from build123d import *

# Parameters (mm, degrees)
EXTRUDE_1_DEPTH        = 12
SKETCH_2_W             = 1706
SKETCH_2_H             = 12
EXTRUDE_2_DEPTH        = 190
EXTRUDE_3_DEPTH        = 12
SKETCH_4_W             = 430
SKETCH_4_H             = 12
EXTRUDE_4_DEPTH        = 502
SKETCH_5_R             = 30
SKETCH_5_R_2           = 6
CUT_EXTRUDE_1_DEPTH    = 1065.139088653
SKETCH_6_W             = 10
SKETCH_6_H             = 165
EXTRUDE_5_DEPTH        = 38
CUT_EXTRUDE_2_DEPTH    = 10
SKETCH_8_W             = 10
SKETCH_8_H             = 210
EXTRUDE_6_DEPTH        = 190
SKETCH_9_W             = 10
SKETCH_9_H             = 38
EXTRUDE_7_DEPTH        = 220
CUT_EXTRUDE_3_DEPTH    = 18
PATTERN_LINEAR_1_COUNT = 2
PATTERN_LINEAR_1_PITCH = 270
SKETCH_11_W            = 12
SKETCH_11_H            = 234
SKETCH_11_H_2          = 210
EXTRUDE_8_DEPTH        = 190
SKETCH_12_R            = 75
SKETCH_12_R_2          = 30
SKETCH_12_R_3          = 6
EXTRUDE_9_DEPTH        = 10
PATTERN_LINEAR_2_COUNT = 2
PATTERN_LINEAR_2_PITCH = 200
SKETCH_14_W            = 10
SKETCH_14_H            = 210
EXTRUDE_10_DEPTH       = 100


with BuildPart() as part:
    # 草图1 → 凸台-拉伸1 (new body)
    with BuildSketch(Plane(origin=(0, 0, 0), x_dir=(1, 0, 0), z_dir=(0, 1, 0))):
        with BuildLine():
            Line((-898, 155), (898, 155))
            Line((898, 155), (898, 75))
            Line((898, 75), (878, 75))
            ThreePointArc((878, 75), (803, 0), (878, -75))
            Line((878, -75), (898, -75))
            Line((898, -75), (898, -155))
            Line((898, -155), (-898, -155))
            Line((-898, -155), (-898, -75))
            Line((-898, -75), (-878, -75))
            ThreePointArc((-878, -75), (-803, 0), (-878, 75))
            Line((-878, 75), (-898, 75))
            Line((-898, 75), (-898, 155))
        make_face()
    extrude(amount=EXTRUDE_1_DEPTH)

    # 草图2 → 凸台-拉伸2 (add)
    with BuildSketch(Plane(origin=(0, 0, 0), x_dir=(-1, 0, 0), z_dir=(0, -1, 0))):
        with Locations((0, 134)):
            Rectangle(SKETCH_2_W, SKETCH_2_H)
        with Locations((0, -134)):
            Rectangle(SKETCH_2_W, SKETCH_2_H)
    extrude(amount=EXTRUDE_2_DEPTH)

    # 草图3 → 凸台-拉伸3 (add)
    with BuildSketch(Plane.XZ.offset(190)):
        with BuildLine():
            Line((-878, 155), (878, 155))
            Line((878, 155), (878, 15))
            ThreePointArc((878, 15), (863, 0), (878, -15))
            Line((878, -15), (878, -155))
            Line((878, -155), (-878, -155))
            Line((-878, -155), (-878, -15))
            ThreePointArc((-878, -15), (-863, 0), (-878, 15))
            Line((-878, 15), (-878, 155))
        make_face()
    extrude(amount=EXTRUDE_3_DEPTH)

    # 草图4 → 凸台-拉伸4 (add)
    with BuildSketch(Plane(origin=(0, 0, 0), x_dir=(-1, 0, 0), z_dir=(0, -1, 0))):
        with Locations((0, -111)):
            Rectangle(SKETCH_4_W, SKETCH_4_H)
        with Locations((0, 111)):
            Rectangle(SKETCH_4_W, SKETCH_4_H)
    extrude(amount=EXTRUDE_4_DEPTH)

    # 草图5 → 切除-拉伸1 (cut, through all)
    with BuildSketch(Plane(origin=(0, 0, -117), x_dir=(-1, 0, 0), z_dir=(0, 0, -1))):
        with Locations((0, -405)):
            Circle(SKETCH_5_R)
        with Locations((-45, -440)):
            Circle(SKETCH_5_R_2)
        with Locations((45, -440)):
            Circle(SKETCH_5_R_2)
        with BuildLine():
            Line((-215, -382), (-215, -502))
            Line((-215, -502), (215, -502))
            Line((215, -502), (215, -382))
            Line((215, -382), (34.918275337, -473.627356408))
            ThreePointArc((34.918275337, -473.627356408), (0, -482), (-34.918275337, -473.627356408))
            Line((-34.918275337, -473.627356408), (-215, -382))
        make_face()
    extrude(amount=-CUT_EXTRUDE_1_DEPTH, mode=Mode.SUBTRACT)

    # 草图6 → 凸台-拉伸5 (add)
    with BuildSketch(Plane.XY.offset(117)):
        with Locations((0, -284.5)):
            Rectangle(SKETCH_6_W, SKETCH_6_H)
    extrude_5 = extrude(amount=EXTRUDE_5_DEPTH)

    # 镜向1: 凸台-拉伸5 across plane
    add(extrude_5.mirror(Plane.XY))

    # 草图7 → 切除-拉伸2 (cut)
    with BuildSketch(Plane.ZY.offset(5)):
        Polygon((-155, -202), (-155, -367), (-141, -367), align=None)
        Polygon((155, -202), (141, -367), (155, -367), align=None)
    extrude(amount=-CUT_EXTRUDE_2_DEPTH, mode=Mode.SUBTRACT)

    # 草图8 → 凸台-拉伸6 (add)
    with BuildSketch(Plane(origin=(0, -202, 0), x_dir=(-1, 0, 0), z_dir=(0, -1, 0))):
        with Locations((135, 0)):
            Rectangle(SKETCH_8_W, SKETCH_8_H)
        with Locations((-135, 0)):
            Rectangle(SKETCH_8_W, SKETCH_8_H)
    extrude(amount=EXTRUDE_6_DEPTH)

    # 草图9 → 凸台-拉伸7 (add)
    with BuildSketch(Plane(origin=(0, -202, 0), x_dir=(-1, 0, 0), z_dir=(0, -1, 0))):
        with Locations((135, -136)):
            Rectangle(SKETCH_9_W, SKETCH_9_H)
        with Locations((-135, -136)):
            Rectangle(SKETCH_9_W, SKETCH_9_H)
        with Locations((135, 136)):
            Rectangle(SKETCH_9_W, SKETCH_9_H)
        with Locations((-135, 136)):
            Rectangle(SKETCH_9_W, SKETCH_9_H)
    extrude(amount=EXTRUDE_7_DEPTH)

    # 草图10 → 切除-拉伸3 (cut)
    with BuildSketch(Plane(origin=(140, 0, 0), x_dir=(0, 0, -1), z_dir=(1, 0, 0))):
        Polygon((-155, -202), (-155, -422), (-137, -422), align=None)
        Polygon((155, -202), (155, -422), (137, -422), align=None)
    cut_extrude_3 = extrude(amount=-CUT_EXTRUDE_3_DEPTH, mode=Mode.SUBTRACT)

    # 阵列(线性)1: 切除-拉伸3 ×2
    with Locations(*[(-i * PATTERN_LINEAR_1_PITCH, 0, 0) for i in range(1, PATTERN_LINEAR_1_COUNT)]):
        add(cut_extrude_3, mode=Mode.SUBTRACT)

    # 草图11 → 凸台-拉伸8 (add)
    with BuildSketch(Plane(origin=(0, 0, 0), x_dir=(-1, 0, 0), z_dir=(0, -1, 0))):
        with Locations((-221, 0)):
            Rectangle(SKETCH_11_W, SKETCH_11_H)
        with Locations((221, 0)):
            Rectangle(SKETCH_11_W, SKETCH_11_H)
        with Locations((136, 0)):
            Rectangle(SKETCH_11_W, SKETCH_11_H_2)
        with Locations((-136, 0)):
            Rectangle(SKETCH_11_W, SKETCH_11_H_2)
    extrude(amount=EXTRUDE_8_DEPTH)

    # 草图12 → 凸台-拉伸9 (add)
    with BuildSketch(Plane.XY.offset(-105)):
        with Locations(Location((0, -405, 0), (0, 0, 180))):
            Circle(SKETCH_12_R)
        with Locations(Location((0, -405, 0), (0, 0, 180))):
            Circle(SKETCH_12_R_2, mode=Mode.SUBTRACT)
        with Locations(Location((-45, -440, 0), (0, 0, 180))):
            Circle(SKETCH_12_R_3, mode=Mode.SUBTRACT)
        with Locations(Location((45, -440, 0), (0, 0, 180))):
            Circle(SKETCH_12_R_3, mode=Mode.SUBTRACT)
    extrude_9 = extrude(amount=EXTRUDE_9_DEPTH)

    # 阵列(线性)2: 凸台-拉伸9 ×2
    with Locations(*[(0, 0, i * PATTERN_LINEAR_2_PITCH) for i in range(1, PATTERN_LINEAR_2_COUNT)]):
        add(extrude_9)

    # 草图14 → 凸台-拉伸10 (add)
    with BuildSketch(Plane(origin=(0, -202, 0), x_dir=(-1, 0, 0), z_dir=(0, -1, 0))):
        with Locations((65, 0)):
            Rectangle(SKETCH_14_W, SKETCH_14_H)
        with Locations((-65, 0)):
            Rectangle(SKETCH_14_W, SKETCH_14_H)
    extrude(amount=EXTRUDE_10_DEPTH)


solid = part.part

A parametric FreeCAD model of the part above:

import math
import FreeCAD as App
import Part
import Sketcher

V = App.Vector


def add_polygon(sketch, points):
    """Adds a closed chain of lines whose ends are joined by coincident constraints."""
    first, n = sketch.GeometryCount, len(points)
    for a, b in zip(points, points[1:] + points[:1]):
        sketch.addGeometry(Part.LineSegment(App.Vector(*a, 0), App.Vector(*b, 0)), False)
    for i in range(n):
        sketch.addConstraint(Sketcher.Constraint("Coincident", first + i, 2, first + (i + 1) % n, 1))

doc = App.newDocument("Part")
params = doc.addObject("Spreadsheet::Sheet", "Params")
for row, (alias, value) in enumerate([
    ("sketch1_radius", "75 mm"),
    ("sketch1_width", "1796 mm"),
    ("sketch1_width2", "20 mm"),
    ("sketch1_height", "80 mm"),
    ("pad1_length", "12 mm"),
    ("sketch2_width", "1706 mm"),
    ("sketch2_height", "12 mm"),
    ("pad2_length", "190 mm"),
    ("sketch3_radius", "15 mm"),
    ("sketch3_width", "1756 mm"),
    ("sketch3_height", "140 mm"),
    ("pad3_length", "12 mm"),
    ("sketch4_width", "430 mm"),
    ("sketch4_height", "12 mm"),
    ("pad4_length", "502 mm"),
    ("sketch5_diameter", "60 mm"),
    ("sketch5_diameter2", "12 mm"),
    ("sketch5_radius", "77 mm"),
    ("sketch5_width", "430 mm"),
    ("sketch5_height", "120 mm"),
    ("sketch6_width", "10 mm"),
    ("sketch6_height", "165 mm"),
    ("pad5_length", "38 mm"),
    ("sketch7_width", "165 mm"),
    ("sketch7_height", "14 mm"),
    ("pocket2_length", "10 mm"),
    ("sketch8_width", "10 mm"),
    ("sketch8_height", "210 mm"),
    ("pad6_length", "190 mm"),
    ("sketch9_width", "10 mm"),
    ("sketch9_height", "38 mm"),
    ("pad7_length", "220 mm"),
    ("sketch10_width", "220 mm"),
    ("sketch10_height", "18 mm"),
    ("pocket3_length", "18 mm"),
    ("linearpattern_pitch", "270 mm"),
    ("sketch11_width", "12 mm"),
    ("sketch11_height", "234 mm"),
    ("sketch11_height2", "210 mm"),
    ("pad8_length", "190 mm"),
    ("sketch12_diameter", "150 mm"),
    ("sketch12_diameter2", "60 mm"),
    ("sketch12_diameter3", "12 mm"),
    ("pad9_length", "10 mm"),
    ("linearpattern2_pitch", "200 mm"),
    ("sketch13_width", "10 mm"),
    ("sketch13_height", "210 mm"),
    ("pad10_length", "100 mm"),
], start=1):
    params.set(f"A{row}", alias)
    params.set(f"B{row}", "=" + value)
    params.setAlias(f"B{row}", alias)

body = doc.addObject("PartDesign::Body", "Body")

# Sketch on XZ plane
sketch1 = doc.addObject("Sketcher::SketchObject", "Sketch")
body.addObject(sketch1)
sketch1.AttachmentSupport = (doc.XZ_Plane, [""])
sketch1.MapMode = "FlatFace"
sketch1.addGeometry(Part.LineSegment(V(898, -155, 0), V(-898, -155, 0)), False)
sketch1.addGeometry(Part.LineSegment(V(-898, -155, 0), V(-898, -75, 0)), False)
sketch1.addGeometry(Part.LineSegment(V(-898, -75, 0), V(-878, -75, 0)), False)
sketch1.addGeometry(Part.ArcOfCircle(Part.Circle(V(-878, 0, 0), V(0, 0, 1), 75), math.radians(-90), math.radians(90)), False)
sketch1.addGeometry(Part.LineSegment(V(-878, 75, 0), V(-898, 75, 0)), False)
sketch1.addGeometry(Part.LineSegment(V(-898, 75, 0), V(-898, 155, 0)), False)
sketch1.addGeometry(Part.LineSegment(V(-898, 155, 0), V(898, 155, 0)), False)
sketch1.addGeometry(Part.LineSegment(V(898, 155, 0), V(898, 75, 0)), False)
sketch1.addGeometry(Part.LineSegment(V(898, 75, 0), V(878, 75, 0)), False)
sketch1.addGeometry(Part.ArcOfCircle(Part.Circle(V(878, 0, 0), V(0, 0, 1), 75), math.radians(90), math.radians(270)), False)
sketch1.addGeometry(Part.LineSegment(V(878, -75, 0), V(898, -75, 0)), False)
sketch1.addGeometry(Part.LineSegment(V(898, -75, 0), V(898, -155, 0)), False)
sketch1.addConstraint(Sketcher.Constraint("Coincident", 0, 2, 1, 1))
sketch1.addConstraint(Sketcher.Constraint("Coincident", 1, 2, 2, 1))
sketch1.addConstraint(Sketcher.Constraint("Tangent", 2, 2, 3, 1))
sketch1.addConstraint(Sketcher.Constraint("Tangent", 3, 2, 4, 1))
sketch1.addConstraint(Sketcher.Constraint("Coincident", 4, 2, 5, 1))
sketch1.addConstraint(Sketcher.Constraint("Coincident", 5, 2, 6, 1))
sketch1.addConstraint(Sketcher.Constraint("Coincident", 6, 2, 7, 1))
sketch1.addConstraint(Sketcher.Constraint("Coincident", 7, 2, 8, 1))
sketch1.addConstraint(Sketcher.Constraint("Tangent", 8, 2, 9, 1))
sketch1.addConstraint(Sketcher.Constraint("Tangent", 9, 2, 10, 1))
sketch1.addConstraint(Sketcher.Constraint("Coincident", 10, 2, 11, 1))
sketch1.addConstraint(Sketcher.Constraint("Coincident", 11, 2, 0, 1))
sketch1.addConstraint(Sketcher.Constraint("Horizontal", 0))
sketch1.addConstraint(Sketcher.Constraint("Vertical", 1))
sketch1.addConstraint(Sketcher.Constraint("Horizontal", 2))
sketch1.addConstraint(Sketcher.Constraint("Horizontal", 4))
sketch1.addConstraint(Sketcher.Constraint("Vertical", 5))
sketch1.addConstraint(Sketcher.Constraint("Horizontal", 6))
sketch1.addConstraint(Sketcher.Constraint("Vertical", 7))
sketch1.addConstraint(Sketcher.Constraint("Horizontal", 8))
sketch1.addConstraint(Sketcher.Constraint("Horizontal", 10))
sketch1.addConstraint(Sketcher.Constraint("Vertical", 11))
sketch1.addConstraint(Sketcher.Constraint("Equal", 3, 9))
sketch1.addConstraint(Sketcher.Constraint("Symmetric", 3, 3, 9, 3, -1, 1))
sketch1.addConstraint(Sketcher.Constraint("Symmetric", 0, 2, 6, 2, -1, 1))
sketch1.addConstraint(Sketcher.Constraint("Symmetric", 4, 2, 7, 2, -2))
sketch1.addConstraint(Sketcher.Constraint("Vertical", 7, 2, 10, 2))
sketch1.addConstraint(Sketcher.Constraint("Radius", 3, 75.0))
sketch1.addConstraint(Sketcher.Constraint("DistanceX", 0, 2, 0, 1, 1796.0))
sketch1.addConstraint(Sketcher.Constraint("DistanceX", 2, 1, 2, 2, 20.0))
sketch1.addConstraint(Sketcher.Constraint("DistanceY", 1, 1, 1, 2, 80.0))
sketch1.setExpression("Constraints[27]", "Params.sketch1_radius")
sketch1.setExpression("Constraints[28]", "Params.sketch1_width")
sketch1.setExpression("Constraints[29]", "Params.sketch1_width2")
sketch1.setExpression("Constraints[30]", "Params.sketch1_height")
pad1 = doc.addObject("PartDesign::Pad", "Pad")
body.addObject(pad1)
pad1.Profile = sketch1
pad1.setExpression("Length", "Params.pad1_length")
pad1.Reversed = True

# Sketch on XZ plane
sketch2 = doc.addObject("Sketcher::SketchObject", "Sketch001")
body.addObject(sketch2)
sketch2.AttachmentSupport = (doc.XZ_Plane, [""])
sketch2.MapMode = "FlatFace"
add_polygon(sketch2, [(853, -140), (853, -128), (-853, -128), (-853, -140)])  # lines 0-3
add_polygon(sketch2, [(853, 128), (853, 140), (-853, 140), (-853, 128)])  # lines 4-7
sketch2.addConstraint(Sketcher.Constraint("Vertical", 0))
sketch2.addConstraint(Sketcher.Constraint("Horizontal", 1))
sketch2.addConstraint(Sketcher.Constraint("Vertical", 2))
sketch2.addConstraint(Sketcher.Constraint("Horizontal", 3))
sketch2.addConstraint(Sketcher.Constraint("Vertical", 4))
sketch2.addConstraint(Sketcher.Constraint("Horizontal", 5))
sketch2.addConstraint(Sketcher.Constraint("Vertical", 6))
sketch2.addConstraint(Sketcher.Constraint("Horizontal", 7))
sketch2.addConstraint(Sketcher.Constraint("Symmetric", 2, 2, 4, 2, -1, 1))
sketch2.addConstraint(Sketcher.Constraint("Symmetric", 0, 2, 6, 2, -1, 1))
sketch2.addConstraint(Sketcher.Constraint("Vertical", 3, 2, 4, 2))
sketch2.addConstraint(Sketcher.Constraint("DistanceX", 1, 2, 1, 1, 1706.0))
sketch2.addConstraint(Sketcher.Constraint("DistanceY", 0, 1, 0, 2, 12.0))
sketch2.addConstraint(Sketcher.Constraint("DistanceY", 0, 2, -1, 1, 128.0))
sketch2.setExpression("Constraints[19]", "Params.sketch2_width")
sketch2.setExpression("Constraints[20]", "Params.sketch2_height")
pad2 = doc.addObject("PartDesign::Pad", "Pad001")
body.addObject(pad2)
pad2.Profile = sketch2
pad2.setExpression("Length", "Params.pad2_length")

# Sketch on XZ plane
sketch3 = doc.addObject("Sketcher::SketchObject", "Sketch002")
body.addObject(sketch3)
sketch3.AttachmentSupport = (doc.XZ_Plane, [""])
sketch3.MapMode = "FlatFace"
sketch3.AttachmentOffset = App.Placement(V(0, 0, 190), App.Rotation())
sketch3.addGeometry(Part.LineSegment(V(878, 155, 0), V(-878, 155, 0)), False)
sketch3.addGeometry(Part.LineSegment(V(-878, 155, 0), V(-878, 15, 0)), False)
sketch3.addGeometry(Part.ArcOfCircle(Part.Circle(V(-878, 0, 0), V(0, 0, 1), 15), math.radians(-90), math.radians(90)), False)
sketch3.addGeometry(Part.LineSegment(V(-878, -15, 0), V(-878, -155, 0)), False)
sketch3.addGeometry(Part.LineSegment(V(-878, -155, 0), V(878, -155, 0)), False)
sketch3.addGeometry(Part.LineSegment(V(878, -155, 0), V(878, -15, 0)), False)
sketch3.addGeometry(Part.ArcOfCircle(Part.Circle(V(878, 0, 0), V(0, 0, 1), 15), math.radians(90), math.radians(270)), False)
sketch3.addGeometry(Part.LineSegment(V(878, 15, 0), V(878, 155, 0)), False)
sketch3.addConstraint(Sketcher.Constraint("Coincident", 0, 2, 1, 1))
sketch3.addConstraint(Sketcher.Constraint("Coincident", 1, 2, 2, 2))
sketch3.addConstraint(Sketcher.Constraint("Coincident", 2, 1, 3, 1))
sketch3.addConstraint(Sketcher.Constraint("Coincident", 3, 2, 4, 1))
sketch3.addConstraint(Sketcher.Constraint("Coincident", 4, 2, 5, 1))
sketch3.addConstraint(Sketcher.Constraint("Coincident", 5, 2, 6, 2))
sketch3.addConstraint(Sketcher.Constraint("Coincident", 6, 1, 7, 1))
sketch3.addConstraint(Sketcher.Constraint("Coincident", 7, 2, 0, 1))
sketch3.addConstraint(Sketcher.Constraint("Horizontal", 0))
sketch3.addConstraint(Sketcher.Constraint("Vertical", 1))
sketch3.addConstraint(Sketcher.Constraint("Vertical", 3))
sketch3.addConstraint(Sketcher.Constraint("Horizontal", 4))
sketch3.addConstraint(Sketcher.Constraint("Vertical", 5))
sketch3.addConstraint(Sketcher.Constraint("Vertical", 7))
sketch3.addConstraint(Sketcher.Constraint("Equal", 2, 6))
sketch3.addConstraint(Sketcher.Constraint("Symmetric", 2, 3, 6, 3, -1, 1))
sketch3.addConstraint(Sketcher.Constraint("Symmetric", 0, 2, 4, 2, -1, 1))
sketch3.addConstraint(Sketcher.Constraint("Symmetric", 2, 1, 5, 2, -2))
sketch3.addConstraint(Sketcher.Constraint("Vertical", 2, 3, 0, 2))
sketch3.addConstraint(Sketcher.Constraint("Vertical", 5, 2, 6, 1))
sketch3.addConstraint(Sketcher.Constraint("Radius", 2, 15.0))
sketch3.addConstraint(Sketcher.Constraint("DistanceX", 0, 2, 0, 1, 1756.0))
sketch3.addConstraint(Sketcher.Constraint("DistanceY", 1, 2, 1, 1, 140.0))
sketch3.setExpression("Constraints[20]", "Params.sketch3_radius")
sketch3.setExpression("Constraints[21]", "Params.sketch3_width")
sketch3.setExpression("Constraints[22]", "Params.sketch3_height")
pad3 = doc.addObject("PartDesign::Pad", "Pad002")
body.addObject(pad3)
pad3.Profile = sketch3
pad3.setExpression("Length", "Params.pad3_length")

# Sketch on XZ plane
sketch4 = doc.addObject("Sketcher::SketchObject", "Sketch003")
body.addObject(sketch4)
sketch4.AttachmentSupport = (doc.XZ_Plane, [""])
sketch4.MapMode = "FlatFace"
add_polygon(sketch4, [(215, 105), (215, 117), (-215, 117), (-215, 105)])  # lines 0-3
add_polygon(sketch4, [(215, -117), (215, -105), (-215, -105), (-215, -117)])  # lines 4-7
sketch4.addConstraint(Sketcher.Constraint("Vertical", 0))
sketch4.addConstraint(Sketcher.Constraint("Horizontal", 1))
sketch4.addConstraint(Sketcher.Constraint("Vertical", 2))
sketch4.addConstraint(Sketcher.Constraint("Horizontal", 3))
sketch4.addConstraint(Sketcher.Constraint("Vertical", 4))
sketch4.addConstraint(Sketcher.Constraint("Horizontal", 5))
sketch4.addConstraint(Sketcher.Constraint("Vertical", 6))
sketch4.addConstraint(Sketcher.Constraint("Horizontal", 7))
sketch4.addConstraint(Sketcher.Constraint("Symmetric", 2, 2, 4, 2, -1, 1))
sketch4.addConstraint(Sketcher.Constraint("Symmetric", 0, 2, 6, 2, -1, 1))
sketch4.addConstraint(Sketcher.Constraint("Vertical", 3, 2, 4, 2))
sketch4.addConstraint(Sketcher.Constraint("DistanceX", 1, 2, 1, 1, 430.0))
sketch4.addConstraint(Sketcher.Constraint("DistanceY", 0, 1, 0, 2, 12.0))
sketch4.addConstraint(Sketcher.Constraint("DistanceY", -1, 1, 0, 2, 117.0))
sketch4.setExpression("Constraints[19]", "Params.sketch4_width")
sketch4.setExpression("Constraints[20]", "Params.sketch4_height")
pad4 = doc.addObject("PartDesign::Pad", "Pad003")
body.addObject(pad4)
pad4.Profile = sketch4
pad4.setExpression("Length", "Params.pad4_length")

# Sketch on XY plane
sketch5 = doc.addObject("Sketcher::SketchObject", "Sketch004")
body.addObject(sketch5)
sketch5.AttachmentSupport = (doc.XY_Plane, [""])
sketch5.MapMode = "FlatFace"
sketch5.AttachmentOffset = App.Placement(V(0, 0, -117), App.Rotation())
sketch5.addGeometry(Part.Circle(V(0, -405, 0), V(0, 0, 1), 30), False)
sketch5.addGeometry(Part.Circle(V(45, -440, 0), V(0, 0, 1), 6), False)
sketch5.addGeometry(Part.Circle(V(-45, -440, 0), V(0, 0, 1), 6), False)
sketch5.addGeometry(Part.LineSegment(V(215, -382, 0), V(215, -502, 0)), False)
sketch5.addGeometry(Part.LineSegment(V(215, -502, 0), V(-215, -502, 0)), False)
sketch5.addGeometry(Part.LineSegment(V(-215, -502, 0), V(-215, -382, 0)), False)
sketch5.addGeometry(Part.LineSegment(V(-215, -382, 0), V(-35, -474, 0)), False)
sketch5.addGeometry(Part.ArcOfCircle(Part.Circle(V(0, -405, 0), V(0, 0, 1), 77), math.radians(-117), math.radians(-63)), False)
sketch5.addGeometry(Part.LineSegment(V(35, -474, 0), V(215, -382, 0)), False)
sketch5.addConstraint(Sketcher.Constraint("Coincident", 3, 2, 4, 1))
sketch5.addConstraint(Sketcher.Constraint("Coincident", 4, 2, 5, 1))
sketch5.addConstraint(Sketcher.Constraint("Coincident", 5, 2, 6, 1))
sketch5.addConstraint(Sketcher.Constraint("Tangent", 6, 2, 7, 1))
sketch5.addConstraint(Sketcher.Constraint("Tangent", 7, 2, 8, 1))
sketch5.addConstraint(Sketcher.Constraint("Coincident", 8, 2, 3, 1))
sketch5.addConstraint(Sketcher.Constraint("Vertical", 3))
sketch5.addConstraint(Sketcher.Constraint("Horizontal", 4))
sketch5.addConstraint(Sketcher.Constraint("Vertical", 5))
sketch5.addConstraint(Sketcher.Constraint("Coincident", 7, 3, 0, 3))
sketch5.addConstraint(Sketcher.Constraint("Equal", 1, 2))
sketch5.addConstraint(Sketcher.Constraint("Symmetric", 1, 3, 2, 3, -2))
sketch5.addConstraint(Sketcher.Constraint("Symmetric", 6, 2, 7, 2, -2))
sketch5.addConstraint(Sketcher.Constraint("Horizontal", 5, 2, 8, 2))
sketch5.addConstraint(Sketcher.Constraint("Diameter", 0, 60.0))
sketch5.addConstraint(Sketcher.Constraint("Diameter", 1, 12.0))
sketch5.addConstraint(Sketcher.Constraint("Radius", 7, 77.0))
sketch5.addConstraint(Sketcher.Constraint("DistanceX", 4, 2, 4, 1, 430.0))
sketch5.addConstraint(Sketcher.Constraint("DistanceY", 3, 2, 3, 1, 120.0))
sketch5.addConstraint(Sketcher.Constraint("DistanceY", 0, 3, -1, 1, 405.0))
sketch5.addConstraint(Sketcher.Constraint("DistanceX", -1, 1, 1, 3, 45.0))
sketch5.addConstraint(Sketcher.Constraint("DistanceY", 1, 3, -1, 1, 440.0))
sketch5.addConstraint(Sketcher.Constraint("DistanceY", 3, 2, -1, 1, 502.0))
sketch5.setExpression("Constraints[14]", "Params.sketch5_diameter")
sketch5.setExpression("Constraints[15]", "Params.sketch5_diameter2")
sketch5.setExpression("Constraints[16]", "Params.sketch5_radius")
sketch5.setExpression("Constraints[17]", "Params.sketch5_width")
sketch5.setExpression("Constraints[18]", "Params.sketch5_height")
pocket1 = doc.addObject("PartDesign::Pocket", "Pocket")
body.addObject(pocket1)
pocket1.Profile = sketch5
pocket1.Type = "ThroughAll"
pocket1.Reversed = True

# Sketch on XY plane
sketch6 = doc.addObject("Sketcher::SketchObject", "Sketch005")
body.addObject(sketch6)
sketch6.AttachmentSupport = (doc.XY_Plane, [""])
sketch6.MapMode = "FlatFace"
sketch6.AttachmentOffset = App.Placement(V(0, 0, 117), App.Rotation())
add_polygon(sketch6, [(-5, -202), (-5, -367), (5, -367), (5, -202)])  # lines 0-3
sketch6.addConstraint(Sketcher.Constraint("Vertical", 0))
sketch6.addConstraint(Sketcher.Constraint("Horizontal", 1))
sketch6.addConstraint(Sketcher.Constraint("Vertical", 2))
sketch6.addConstraint(Sketcher.Constraint("Horizontal", 3))
sketch6.addConstraint(Sketcher.Constraint("DistanceX", 1, 1, 1, 2, 10.0))
sketch6.addConstraint(Sketcher.Constraint("DistanceY", 0, 2, 0, 1, 165.0))
sketch6.addConstraint(Sketcher.Constraint("DistanceX", 0, 2, -1, 1, 5.0))
sketch6.addConstraint(Sketcher.Constraint("DistanceY", 0, 2, -1, 1, 367.0))
sketch6.setExpression("Constraints[8]", "Params.sketch6_width")
sketch6.setExpression("Constraints[9]", "Params.sketch6_height")
pad5 = doc.addObject("PartDesign::Pad", "Pad004")
body.addObject(pad5)
pad5.Profile = sketch6
pad5.setExpression("Length", "Params.pad5_length")
doc.recompute()

mirrored = doc.addObject("PartDesign::Mirrored", "Mirrored")
body.addObject(mirrored)
mirrored.Originals = [pad5]
mirrored.MirrorPlane = (doc.XY_Plane, [""])
body.Tip = mirrored

# Sketch on YZ plane
sketch7 = doc.addObject("Sketcher::SketchObject", "Sketch006")
body.addObject(sketch7)
sketch7.AttachmentSupport = (doc.YZ_Plane, [""])
sketch7.MapMode = "FlatFace"
sketch7.AttachmentOffset = App.Placement(V(0, 0, -5), App.Rotation())
add_polygon(sketch7, [(-202, -155), (-367, -155), (-367, -141)])  # lines 0-2
add_polygon(sketch7, [(-202, 155), (-367, 141), (-367, 155)])  # lines 3-5
sketch7.addConstraint(Sketcher.Constraint("Horizontal", 0))
sketch7.addConstraint(Sketcher.Constraint("Vertical", 1))
sketch7.addConstraint(Sketcher.Constraint("Vertical", 4))
sketch7.addConstraint(Sketcher.Constraint("Horizontal", 5))
sketch7.addConstraint(Sketcher.Constraint("Symmetric", 1, 2, 3, 2, -1))
sketch7.addConstraint(Sketcher.Constraint("Symmetric", 2, 2, 5, 2, -1))
sketch7.addConstraint(Sketcher.Constraint("DistanceX", 0, 2, 0, 1, 165.0))
sketch7.addConstraint(Sketcher.Constraint("DistanceY", 1, 1, 1, 2, 14.0))
sketch7.addConstraint(Sketcher.Constraint("DistanceX", 0, 2, -1, 1, 367.0))
sketch7.addConstraint(Sketcher.Constraint("DistanceY", 0, 2, -1, 1, 155.0))
sketch7.setExpression("Constraints[12]", "Params.sketch7_width")
sketch7.setExpression("Constraints[13]", "Params.sketch7_height")
pocket2 = doc.addObject("PartDesign::Pocket", "Pocket001")
body.addObject(pocket2)
pocket2.Profile = sketch7
pocket2.setExpression("Length", "Params.pocket2_length")
pocket2.Reversed = True

# Sketch on XZ plane
sketch8 = doc.addObject("Sketcher::SketchObject", "Sketch007")
body.addObject(sketch8)
sketch8.AttachmentSupport = (doc.XZ_Plane, [""])
sketch8.MapMode = "FlatFace"
sketch8.AttachmentOffset = App.Placement(V(0, 0, 202), App.Rotation())
add_polygon(sketch8, [(-130, -105), (-130, 105), (-140, 105), (-140, -105)])  # lines 0-3
add_polygon(sketch8, [(140, -105), (140, 105), (130, 105), (130, -105)])  # lines 4-7
sketch8.addConstraint(Sketcher.Constraint("Vertical", 0))
sketch8.addConstraint(Sketcher.Constraint("Horizontal", 1))
sketch8.addConstraint(Sketcher.Constraint("Vertical", 2))
sketch8.addConstraint(Sketcher.Constraint("Horizontal", 3))
sketch8.addConstraint(Sketcher.Constraint("Vertical", 4))
sketch8.addConstraint(Sketcher.Constraint("Horizontal", 5))
sketch8.addConstraint(Sketcher.Constraint("Vertical", 6))
sketch8.addConstraint(Sketcher.Constraint("Horizontal", 7))
sketch8.addConstraint(Sketcher.Constraint("Symmetric", 2, 2, 4, 2, -1, 1))
sketch8.addConstraint(Sketcher.Constraint("Symmetric", 0, 2, 6, 2, -1, 1))
sketch8.addConstraint(Sketcher.Constraint("Horizontal", 1, 2, 4, 2))
sketch8.addConstraint(Sketcher.Constraint("DistanceX", 1, 2, 1, 1, 10.0))
sketch8.addConstraint(Sketcher.Constraint("DistanceY", 0, 1, 0, 2, 210.0))
sketch8.addConstraint(Sketcher.Constraint("DistanceX", 0, 2, -1, 1, 130.0))
sketch8.setExpression("Constraints[19]", "Params.sketch8_width")
sketch8.setExpression("Constraints[20]", "Params.sketch8_height")
pad6 = doc.addObject("PartDesign::Pad", "Pad005")
body.addObject(pad6)
pad6.Profile = sketch8
pad6.setExpression("Length", "Params.pad6_length")

# Sketch on XZ plane
sketch9 = doc.addObject("Sketcher::SketchObject", "Sketch008")
body.addObject(sketch9)
sketch9.AttachmentSupport = (doc.XZ_Plane, [""])
sketch9.MapMode = "FlatFace"
sketch9.AttachmentOffset = App.Placement(V(0, 0, 202), App.Rotation())
add_polygon(sketch9, [(-130, 117), (-130, 155), (-140, 155), (-140, 117)])  # lines 0-3
add_polygon(sketch9, [(140, 117), (140, 155), (130, 155), (130, 117)])  # lines 4-7
add_polygon(sketch9, [(-130, -155), (-130, -117), (-140, -117), (-140, -155)])  # lines 8-11
add_polygon(sketch9, [(140, -155), (140, -117), (130, -117), (130, -155)])  # lines 12-15
sketch9.addConstraint(Sketcher.Constraint("Vertical", 0))
sketch9.addConstraint(Sketcher.Constraint("Horizontal", 1))
sketch9.addConstraint(Sketcher.Constraint("Vertical", 2))
sketch9.addConstraint(Sketcher.Constraint("Horizontal", 3))
sketch9.addConstraint(Sketcher.Constraint("Vertical", 4))
sketch9.addConstraint(Sketcher.Constraint("Horizontal", 5))
sketch9.addConstraint(Sketcher.Constraint("Vertical", 6))
sketch9.addConstraint(Sketcher.Constraint("Horizontal", 7))
sketch9.addConstraint(Sketcher.Constraint("Vertical", 8))
sketch9.addConstraint(Sketcher.Constraint("Horizontal", 9))
sketch9.addConstraint(Sketcher.Constraint("Vertical", 10))
sketch9.addConstraint(Sketcher.Constraint("Horizontal", 11))
sketch9.addConstraint(Sketcher.Constraint("Vertical", 12))
sketch9.addConstraint(Sketcher.Constraint("Horizontal", 13))
sketch9.addConstraint(Sketcher.Constraint("Vertical", 14))
sketch9.addConstraint(Sketcher.Constraint("Horizontal", 15))
sketch9.addConstraint(Sketcher.Constraint("Symmetric", 6, 2, 8, 2, -1, 1))
sketch9.addConstraint(Sketcher.Constraint("Symmetric", 4, 2, 10, 2, -1, 1))
sketch9.addConstraint(Sketcher.Constraint("Symmetric", 2, 2, 12, 2, -1, 1))
sketch9.addConstraint(Sketcher.Constraint("Symmetric", 0, 2, 14, 2, -1, 1))
sketch9.addConstraint(Sketcher.Constraint("Symmetric", 1, 2, 4, 2, -2))
sketch9.addConstraint(Sketcher.Constraint("Symmetric", 3, 2, 6, 2, -2))
sketch9.addConstraint(Sketcher.Constraint("DistanceX", 1, 2, 1, 1, 10.0))
sketch9.addConstraint(Sketcher.Constraint("DistanceY", 0, 1, 0, 2, 38.0))
sketch9.addConstraint(Sketcher.Constraint("DistanceX", 0, 2, -1, 1, 130.0))
sketch9.addConstraint(Sketcher.Constraint("DistanceY", -1, 1, 0, 2, 155.0))
sketch9.setExpression("Constraints[38]", "Params.sketch9_width")
sketch9.setExpression("Constraints[39]", "Params.sketch9_height")
pad7 = doc.addObject("PartDesign::Pad", "Pad006")
body.addObject(pad7)
pad7.Profile = sketch9
pad7.setExpression("Length", "Params.pad7_length")

# Sketch on YZ plane
sketch10 = doc.addObject("Sketcher::SketchObject", "Sketch009")
body.addObject(sketch10)
sketch10.AttachmentSupport = (doc.YZ_Plane, [""])
sketch10.MapMode = "FlatFace"
sketch10.AttachmentOffset = App.Placement(V(0, 0, 140), App.Rotation())
add_polygon(sketch10, [(-202, 155), (-422, 155), (-422, 137)])  # lines 0-2
add_polygon(sketch10, [(-422, -155), (-202, -155), (-422, -137)])  # lines 3-5
sketch10.addConstraint(Sketcher.Constraint("Horizontal", 0))
sketch10.addConstraint(Sketcher.Constraint("Vertical", 1))
sketch10.addConstraint(Sketcher.Constraint("Horizontal", 3))
sketch10.addConstraint(Sketcher.Constraint("Vertical", 5))
sketch10.addConstraint(Sketcher.Constraint("Symmetric", 2, 2, 3, 2, -1))
sketch10.addConstraint(Sketcher.Constraint("Symmetric", 1, 2, 4, 2, -1))
sketch10.addConstraint(Sketcher.Constraint("DistanceX", 0, 2, 0, 1, 220.0))
sketch10.addConstraint(Sketcher.Constraint("DistanceY", 1, 2, 1, 1, 18.0))
sketch10.addConstraint(Sketcher.Constraint("DistanceX", 0, 2, -1, 1, 422.0))
sketch10.addConstraint(Sketcher.Constraint("DistanceY", -1, 1, 0, 2, 155.0))
sketch10.setExpression("Constraints[12]", "Params.sketch10_width")
sketch10.setExpression("Constraints[13]", "Params.sketch10_height")
pocket3 = doc.addObject("PartDesign::Pocket", "Pocket002")
body.addObject(pocket3)
pocket3.Profile = sketch10
pocket3.setExpression("Length", "Params.pocket3_length")
doc.recompute()

linearpattern = doc.addObject("PartDesign::LinearPattern", "LinearPattern")
body.addObject(linearpattern)
linearpattern.Originals = [pocket3]
linearpattern.Direction = (doc.X_Axis, [""])
linearpattern.Mode = "offset"
linearpattern.setExpression("Offset", "Params.linearpattern_pitch")
linearpattern.Occurrences = 2
linearpattern.Reversed = True
body.Tip = linearpattern

# Sketch on XZ plane
sketch11 = doc.addObject("Sketcher::SketchObject", "Sketch010")
body.addObject(sketch11)
sketch11.AttachmentSupport = (doc.XZ_Plane, [""])
sketch11.MapMode = "FlatFace"
add_polygon(sketch11, [(227, -117), (227, 117), (215, 117), (215, -117)])  # lines 0-3
add_polygon(sketch11, [(-215, -117), (-215, 117), (-227, 117), (-227, -117)])  # lines 4-7
add_polygon(sketch11, [(-130, -105), (-130, 105), (-142, 105), (-142, -105)])  # lines 8-11
add_polygon(sketch11, [(142, -105), (142, 105), (130, 105), (130, -105)])  # lines 12-15
sketch11.addConstraint(Sketcher.Constraint("Vertical", 0))
sketch11.addConstraint(Sketcher.Constraint("Horizontal", 1))
sketch11.addConstraint(Sketcher.Constraint("Vertical", 2))
sketch11.addConstraint(Sketcher.Constraint("Horizontal", 3))
sketch11.addConstraint(Sketcher.Constraint("Vertical", 4))
sketch11.addConstraint(Sketcher.Constraint("Horizontal", 5))
sketch11.addConstraint(Sketcher.Constraint("Vertical", 6))
sketch11.addConstraint(Sketcher.Constraint("Horizontal", 7))
sketch11.addConstraint(Sketcher.Constraint("Vertical", 8))
sketch11.addConstraint(Sketcher.Constraint("Horizontal", 9))
sketch11.addConstraint(Sketcher.Constraint("Vertical", 10))
sketch11.addConstraint(Sketcher.Constraint("Horizontal", 11))
sketch11.addConstraint(Sketcher.Constraint("Vertical", 12))
sketch11.addConstraint(Sketcher.Constraint("Horizontal", 13))
sketch11.addConstraint(Sketcher.Constraint("Vertical", 14))
sketch11.addConstraint(Sketcher.Constraint("Horizontal", 15))
sketch11.addConstraint(Sketcher.Constraint("Symmetric", 2, 2, 4, 2, -1, 1))
sketch11.addConstraint(Sketcher.Constraint("Symmetric", 0, 2, 6, 2, -1, 1))
sketch11.addConstraint(Sketcher.Constraint("Symmetric", 10, 2, 12, 2, -1, 1))
sketch11.addConstraint(Sketcher.Constraint("Symmetric", 8, 2, 14, 2, -1, 1))
sketch11.addConstraint(Sketcher.Constraint("Horizontal", 1, 2, 4, 2))
sketch11.addConstraint(Sketcher.Constraint("Horizontal", 9, 2, 12, 2))
sketch11.addConstraint(Sketcher.Constraint("Equal", 7, 9))
sketch11.addConstraint(Sketcher.Constraint("DistanceX", 1, 2, 1, 1, 12.0))
sketch11.addConstraint(Sketcher.Constraint("DistanceY", 0, 1, 0, 2, 234.0))
sketch11.addConstraint(Sketcher.Constraint("DistanceY", 8, 1, 8, 2, 210.0))
sketch11.addConstraint(Sketcher.Constraint("DistanceX", -1, 1, 0, 2, 227.0))
sketch11.addConstraint(Sketcher.Constraint("DistanceX", 8, 2, -1, 1, 130.0))
sketch11.setExpression("Constraints[39]", "Params.sketch11_width")
sketch11.setExpression("Constraints[40]", "Params.sketch11_height")
sketch11.setExpression("Constraints[41]", "Params.sketch11_height2")
pad8 = doc.addObject("PartDesign::Pad", "Pad007")
body.addObject(pad8)
pad8.Profile = sketch11
pad8.setExpression("Length", "Params.pad8_length")

# Sketch on XY plane
sketch12 = doc.addObject("Sketcher::SketchObject", "Sketch011")
body.addObject(sketch12)
sketch12.AttachmentSupport = (doc.XY_Plane, [""])
sketch12.MapMode = "FlatFace"
sketch12.AttachmentOffset = App.Placement(V(0, 0, -105), App.Rotation())
sketch12.addGeometry(Part.Circle(V(0, -405, 0), V(0, 0, 1), 75), False)
sketch12.addGeometry(Part.Circle(V(0, -405, 0), V(0, 0, 1), 30), False)
sketch12.addGeometry(Part.Circle(V(45, -440, 0), V(0, 0, 1), 6), False)
sketch12.addGeometry(Part.Circle(V(-45, -440, 0), V(0, 0, 1), 6), False)
sketch12.addConstraint(Sketcher.Constraint("Coincident", 1, 3, 0, 3))
sketch12.addConstraint(Sketcher.Constraint("Equal", 2, 3))
sketch12.addConstraint(Sketcher.Constraint("Symmetric", 2, 3, 3, 3, -2))
sketch12.addConstraint(Sketcher.Constraint("PointOnObject", 0, 3, -2))
sketch12.addConstraint(Sketcher.Constraint("Diameter", 0, 150.0))
sketch12.addConstraint(Sketcher.Constraint("Diameter", 1, 60.0))
sketch12.addConstraint(Sketcher.Constraint("Diameter", 2, 12.0))
sketch12.addConstraint(Sketcher.Constraint("DistanceY", 0, 3, -1, 1, 405.0))
sketch12.addConstraint(Sketcher.Constraint("DistanceX", -1, 1, 2, 3, 45.0))
sketch12.addConstraint(Sketcher.Constraint("DistanceY", 2, 3, -1, 1, 440.0))
sketch12.setExpression("Constraints[4]", "Params.sketch12_diameter")
sketch12.setExpression("Constraints[5]", "Params.sketch12_diameter2")
sketch12.setExpression("Constraints[6]", "Params.sketch12_diameter3")
pad9 = doc.addObject("PartDesign::Pad", "Pad008")
body.addObject(pad9)
pad9.Profile = sketch12
pad9.setExpression("Length", "Params.pad9_length")
doc.recompute()

linearpattern2 = doc.addObject("PartDesign::LinearPattern", "LinearPattern001")
body.addObject(linearpattern2)
linearpattern2.Originals = [pad9]
linearpattern2.Direction = (doc.Z_Axis, [""])
linearpattern2.Mode = "offset"
linearpattern2.setExpression("Offset", "Params.linearpattern2_pitch")
linearpattern2.Occurrences = 2
body.Tip = linearpattern2

# Sketch on XZ plane
sketch13 = doc.addObject("Sketcher::SketchObject", "Sketch012")
body.addObject(sketch13)
sketch13.AttachmentSupport = (doc.XZ_Plane, [""])
sketch13.MapMode = "FlatFace"
sketch13.AttachmentOffset = App.Placement(V(0, 0, 202), App.Rotation())
add_polygon(sketch13, [(-60, -105), (-60, 105), (-70, 105), (-70, -105)])  # lines 0-3
add_polygon(sketch13, [(70, -105), (70, 105), (60, 105), (60, -105)])  # lines 4-7
sketch13.addConstraint(Sketcher.Constraint("Vertical", 0))
sketch13.addConstraint(Sketcher.Constraint("Horizontal", 1))
sketch13.addConstraint(Sketcher.Constraint("Vertical", 2))
sketch13.addConstraint(Sketcher.Constraint("Horizontal", 3))
sketch13.addConstraint(Sketcher.Constraint("Vertical", 4))
sketch13.addConstraint(Sketcher.Constraint("Horizontal", 5))
sketch13.addConstraint(Sketcher.Constraint("Vertical", 6))
sketch13.addConstraint(Sketcher.Constraint("Horizontal", 7))
sketch13.addConstraint(Sketcher.Constraint("Symmetric", 2, 2, 4, 2, -1, 1))
sketch13.addConstraint(Sketcher.Constraint("Symmetric", 0, 2, 6, 2, -1, 1))
sketch13.addConstraint(Sketcher.Constraint("Horizontal", 1, 2, 4, 2))
sketch13.addConstraint(Sketcher.Constraint("DistanceX", 1, 2, 1, 1, 10.0))
sketch13.addConstraint(Sketcher.Constraint("DistanceY", 0, 1, 0, 2, 210.0))
sketch13.addConstraint(Sketcher.Constraint("DistanceX", 0, 2, -1, 1, 60.0))
sketch13.setExpression("Constraints[19]", "Params.sketch13_width")
sketch13.setExpression("Constraints[20]", "Params.sketch13_height")
pad10 = doc.addObject("PartDesign::Pad", "Pad009")
body.addObject(pad10)
pad10.Profile = sketch13
pad10.setExpression("Length", "Params.pad10_length")

doc.recompute()
